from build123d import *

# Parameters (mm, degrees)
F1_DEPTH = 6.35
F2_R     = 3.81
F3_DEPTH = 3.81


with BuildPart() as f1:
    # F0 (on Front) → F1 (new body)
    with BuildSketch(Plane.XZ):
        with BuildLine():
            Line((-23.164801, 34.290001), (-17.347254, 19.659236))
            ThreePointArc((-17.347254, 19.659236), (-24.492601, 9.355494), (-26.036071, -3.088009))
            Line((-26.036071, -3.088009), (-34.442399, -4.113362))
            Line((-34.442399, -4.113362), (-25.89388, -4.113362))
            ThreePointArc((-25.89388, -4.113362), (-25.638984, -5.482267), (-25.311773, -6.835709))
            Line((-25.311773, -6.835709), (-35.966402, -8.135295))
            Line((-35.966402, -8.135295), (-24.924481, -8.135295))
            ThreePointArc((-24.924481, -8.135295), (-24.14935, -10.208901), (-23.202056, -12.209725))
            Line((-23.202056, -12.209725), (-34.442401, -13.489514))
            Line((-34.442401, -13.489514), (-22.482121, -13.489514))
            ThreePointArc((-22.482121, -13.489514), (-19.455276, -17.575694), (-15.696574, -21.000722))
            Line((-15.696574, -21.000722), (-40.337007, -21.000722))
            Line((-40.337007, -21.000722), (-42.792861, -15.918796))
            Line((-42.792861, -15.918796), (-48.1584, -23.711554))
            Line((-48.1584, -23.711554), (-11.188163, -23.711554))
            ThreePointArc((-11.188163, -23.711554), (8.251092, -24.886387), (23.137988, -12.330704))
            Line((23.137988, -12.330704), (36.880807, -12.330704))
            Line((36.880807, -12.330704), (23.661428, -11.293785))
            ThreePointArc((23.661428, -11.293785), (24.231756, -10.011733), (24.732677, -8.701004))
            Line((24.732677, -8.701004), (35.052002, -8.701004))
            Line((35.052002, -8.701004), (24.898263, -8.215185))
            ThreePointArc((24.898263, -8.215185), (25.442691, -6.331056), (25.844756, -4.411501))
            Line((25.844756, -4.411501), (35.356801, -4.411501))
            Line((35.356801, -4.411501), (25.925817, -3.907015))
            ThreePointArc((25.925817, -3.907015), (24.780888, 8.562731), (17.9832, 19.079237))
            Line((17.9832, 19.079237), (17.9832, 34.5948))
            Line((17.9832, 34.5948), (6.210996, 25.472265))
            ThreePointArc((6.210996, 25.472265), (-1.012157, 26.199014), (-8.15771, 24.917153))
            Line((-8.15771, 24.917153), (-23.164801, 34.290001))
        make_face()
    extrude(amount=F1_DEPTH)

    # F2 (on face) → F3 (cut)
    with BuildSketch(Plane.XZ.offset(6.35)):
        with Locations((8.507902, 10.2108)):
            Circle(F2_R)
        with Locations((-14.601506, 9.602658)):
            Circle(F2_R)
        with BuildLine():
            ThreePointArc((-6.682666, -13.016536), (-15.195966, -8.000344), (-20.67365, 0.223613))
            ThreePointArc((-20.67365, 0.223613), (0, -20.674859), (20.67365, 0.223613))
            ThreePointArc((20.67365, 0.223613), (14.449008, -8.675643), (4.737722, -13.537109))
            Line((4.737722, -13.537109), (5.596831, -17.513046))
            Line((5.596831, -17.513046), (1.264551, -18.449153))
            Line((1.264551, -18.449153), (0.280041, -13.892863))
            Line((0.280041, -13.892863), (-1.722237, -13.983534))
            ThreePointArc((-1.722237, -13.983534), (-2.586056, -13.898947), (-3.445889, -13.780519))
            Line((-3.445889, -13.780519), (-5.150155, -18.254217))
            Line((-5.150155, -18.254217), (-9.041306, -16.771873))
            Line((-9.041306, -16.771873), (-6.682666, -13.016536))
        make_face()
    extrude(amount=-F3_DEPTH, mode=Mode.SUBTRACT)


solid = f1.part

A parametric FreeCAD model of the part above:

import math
import FreeCAD as App
import Part
import Sketcher
Q = App.Units.Quantity

doc = App.newDocument("Part")
body = doc.addObject("PartDesign::Body", "Body")

# Sketch on XZ plane
sketch1 = body.newObject("Sketcher::SketchObject", "Sketch")
sketch1.AttachmentSupport = (doc.getObject("XZ_Plane"), [""])
sketch1.MapMode = "FlatFace"
sketch1.addGeometry(Part.LineSegment(App.Vector(-23.2, 34.3, 0), App.Vector(-17.3, 19.7, 0)), False)
sketch1.addGeometry(Part.ArcOfCircle(Part.Circle(App.Vector(0, 0, 0), App.Vector(0, 0, 1), 26.2), math.radians(131), math.radians(187)), False)
sketch1.addGeometry(Part.LineSegment(App.Vector(-26, -3.1, 0), App.Vector(-34.4, -4.1, 0)), False)
sketch1.addGeometry(Part.LineSegment(App.Vector(-34.4, -4.1, 0), App.Vector(-25.9, -4.1, 0)), False)
sketch1.addGeometry(Part.ArcOfCircle(Part.Circle(App.Vector(0, 0, 0), App.Vector(0, 0, 1), 26.2), math.radians(-170.97), math.radians(-164.89)), False)
sketch1.addGeometry(Part.LineSegment(App.Vector(-25.3, -6.8, 0), App.Vector(-36, -8.1, 0)), False)
sketch1.addGeometry(Part.LineSegment(App.Vector(-36, -8.1, 0), App.Vector(-24.9, -8.1, 0)), False)
sketch1.addGeometry(Part.ArcOfCircle(Part.Circle(App.Vector(0, 0, 0), App.Vector(0, 0, 1), 26.2), math.radians(-161.92), math.radians(-152.25)), False)
sketch1.addGeometry(Part.LineSegment(App.Vector(-23.2, -12.2, 0), App.Vector(-34.4, -13.5, 0)), False)
sketch1.addGeometry(Part.LineSegment(App.Vector(-34.4, -13.5, 0), App.Vector(-22.5, -13.5, 0)), False)
sketch1.addGeometry(Part.ArcOfCircle(Part.Circle(App.Vector(0, 0, 0), App.Vector(0, 0, 1), 26.2), math.radians(-149), math.radians(-127)), False)
sketch1.addGeometry(Part.LineSegment(App.Vector(-15.7, -21, 0), App.Vector(-40.3, -21, 0)), False)
sketch1.addGeometry(Part.LineSegment(App.Vector(-40.3, -21, 0), App.Vector(-42.8, -15.9, 0)), False)
sketch1.addGeometry(Part.LineSegment(App.Vector(-42.8, -15.9, 0), App.Vector(-48.2, -23.7, 0)), False)
sketch1.addGeometry(Part.LineSegment(App.Vector(-48.2, -23.7, 0), App.Vector(-11.2, -23.7, 0)), False)
sketch1.addGeometry(Part.ArcOfCircle(Part.Circle(App.Vector(0, 0, 0), App.Vector(0, 0, 1), 26.2), math.radians(-115), math.radians(-28)), False)
sketch1.addGeometry(Part.LineSegment(App.Vector(23.1, -12.3, 0), App.Vector(36.9, -12.3, 0)), False)
sketch1.addGeometry(Part.LineSegment(App.Vector(36.9, -12.3, 0), App.Vector(23.7, -11.3, 0)), False)
sketch1.addGeometry(Part.ArcOfCircle(Part.Circle(App.Vector(0, 0, 0), App.Vector(0, 0, 1), 26.2), math.radians(-25.52), math.radians(-19.38)), False)
sketch1.addGeometry(Part.LineSegment(App.Vector(24.7, -8.7, 0), App.Vector(35.1, -8.7, 0)), False)
sketch1.addGeometry(Part.LineSegment(App.Vector(35.1, -8.7, 0), App.Vector(24.9, -8.2, 0)), False)
sketch1.addGeometry(Part.ArcOfCircle(Part.Circle(App.Vector(0, 0, 0), App.Vector(0, 0, 1), 26.2), math.radians(-18.26), math.radians(-9.69)), False)
sketch1.addGeometry(Part.LineSegment(App.Vector(25.8, -4.4, 0), App.Vector(35.4, -4.4, 0)), False)
sketch1.addGeometry(Part.LineSegment(App.Vector(35.4, -4.4, 0), App.Vector(25.9, -3.9, 0)), False)
sketch1.addGeometry(Part.ArcOfCircle(Part.Circle(App.Vector(0, 0, 0), App.Vector(0, 0, 1), 26.2), math.radians(-9), math.radians(47)), False)
sketch1.addGeometry(Part.LineSegment(App.Vector(18, 19.1, 0), App.Vector(18, 34.6, 0)), False)
sketch1.addGeometry(Part.LineSegment(App.Vector(18, 34.6, 0), App.Vector(6.2, 25.5, 0)), False)
sketch1.addGeometry(Part.ArcOfCircle(Part.Circle(App.Vector(0, 0, 0), App.Vector(0, 0, 1), 26.2), math.radians(76), math.radians(108)), False)
sketch1.addGeometry(Part.LineSegment(App.Vector(-8.2, 24.9, 0), App.Vector(-23.2, 34.3, 0)), False)
sketch1.addConstraint(Sketcher.Constraint("Coincident", 0, 2, 1, 1))
sketch1.addConstraint(Sketcher.Constraint("Coincident", 1, 2, 2, 1))
sketch1.addConstraint(Sketcher.Constraint("Coincident", 2, 2, 3, 1))
sketch1.addConstraint(Sketcher.Constraint("Coincident", 3, 2, 4, 1))
sketch1.addConstraint(Sketcher.Constraint("Coincident", 4, 2, 5, 1))
sketch1.addConstraint(Sketcher.Constraint("Coincident", 5, 2, 6, 1))
sketch1.addConstraint(Sketcher.Constraint("Coincident", 6, 2, 7, 1))
sketch1.addConstraint(Sketcher.Constraint("Coincident", 7, 2, 8, 1))
sketch1.addConstraint(Sketcher.Constraint("Coincident", 8, 2, 9, 1))
sketch1.addConstraint(Sketcher.Constraint("Coincident", 9, 2, 10, 1))
sketch1.addConstraint(Sketcher.Constraint("Coincident", 10, 2, 11, 1))
sketch1.addConstraint(Sketcher.Constraint("Coincident", 11, 2, 12, 1))
sketch1.addConstraint(Sketcher.Constraint("Coincident", 12, 2, 13, 1))
sketch1.addConstraint(Sketcher.Constraint("Coincident", 13, 2, 14, 1))
sketch1.addConstraint(Sketcher.Constraint("Coincident", 14, 2, 15, 1))
sketch1.addConstraint(Sketcher.Constraint("Coincident", 15, 2, 16, 1))
sketch1.addConstraint(Sketcher.Constraint("Coincident", 16, 2, 17, 1))
sketch1.addConstraint(Sketcher.Constraint("Coincident", 17, 2, 18, 1))
sketch1.addConstraint(Sketcher.Constraint("Coincident", 18, 2, 19, 1))
sketch1.addConstraint(Sketcher.Constraint("Coincident", 19, 2, 20, 1))
sketch1.addConstraint(Sketcher.Constraint("Coincident", 20, 2, 21, 1))
sketch1.addConstraint(Sketcher.Constraint("Coincident", 21, 2, 22, 1))
sketch1.addConstraint(Sketcher.Constraint("Coincident", 22, 2, 23, 1))
sketch1.addConstraint(Sketcher.Constraint("Coincident", 23, 2, 24, 1))
sketch1.addConstraint(Sketcher.Constraint("Coincident", 24, 2, 25, 1))
sketch1.addConstraint(Sketcher.Constraint("Coincident", 25, 2, 26, 1))
sketch1.addConstraint(Sketcher.Constraint("Coincident", 26, 2, 27, 1))
sketch1.addConstraint(Sketcher.Constraint("Coincident", 27, 2, 28, 1))
sketch1.addConstraint(Sketcher.Constraint("Coincident", 28, 2, 0, 1))
sketch1.addConstraint(Sketcher.Constraint("Horizontal", 3))
sketch1.addConstraint(Sketcher.Constraint("Horizontal", 6))
sketch1.addConstraint(Sketcher.Constraint("Horizontal", 9))
sketch1.addConstraint(Sketcher.Constraint("Horizontal", 11))
sketch1.addConstraint(Sketcher.Constraint("Horizontal", 14))
sketch1.addConstraint(Sketcher.Constraint("Horizontal", 16))
sketch1.addConstraint(Sketcher.Constraint("Horizontal", 19))
sketch1.addConstraint(Sketcher.Constraint("Horizontal", 22))
sketch1.addConstraint(Sketcher.Constraint("Vertical", 25))
sketch1.addConstraint(Sketcher.Constraint("Coincident", 1, 3, -1, 1))
sketch1.addConstraint(Sketcher.Constraint("Coincident", 15, 3, -1, 1))
sketch1.addConstraint(Sketcher.Constraint("Coincident", 24, 3, -1, 1))
sketch1.addConstraint(Sketcher.Constraint("Equal", 15, 24))
sketch1.addConstraint(Sketcher.Constraint("PointOnObject", 27, 3, -2))
sketch1.addConstraint(Sketcher.Constraint("Parallel", 2, 5))
sketch1.addConstraint(Sketcher.Constraint("Vertical", 2, 2, 8, 2))
sketch1.addConstraint(Sketcher.Constraint("DistanceX", -1, 1, 19, 2, Q("1.3800001 in")))
sketch1.addConstraint(Sketcher.Constraint("DistanceY", -1, 1, 28, 2, Q("1.35 in")))
sketch1.addConstraint(Sketcher.Constraint("DistanceX", 5, 2, 2, 2, Q("0.0600001 in")))
sketch1.addConstraint(Sketcher.Constraint("DistanceX", 13, 2, 8, 2, Q("0.54 in")))
sketch1.addConstraint(Sketcher.Constraint("DistanceX", 2, 2, -1, 1, Q("1.356 in")))
sketch1.addConstraint(Sketcher.Constraint("DistanceX", -1, 1, 22, 2, Q("1.392 in")))
sketch1.addConstraint(Sketcher.Constraint("DistanceX", -1, 1, 24, 2, Q("0.708 in")))
sketch1.addConstraint(Sketcher.Constraint("DistanceY", -1, 1, 25, 2, Q("1.362 in")))
sketch1.addConstraint(Sketcher.Constraint("DistanceX", 28, 2, -1, 1, Q("0.912 in")))
sketch1.addConstraint(Sketcher.Constraint("Radius", 1, Q("26.21856 mm")))
sketch1.addConstraint(Sketcher.Constraint("Radius", 4, Q("26.218789 mm")))
sketch1.addConstraint(Sketcher.Constraint("Radius", 7, Q("26.218651 mm")))
sketch1.addConstraint(Sketcher.Constraint("Radius", 10, Q("26.21853 mm")))
sketch1.addConstraint(Sketcher.Constraint("DistanceX", 19, 2, 16, 2, Q("0.0720002 in")))
sketch1.addConstraint(Sketcher.Constraint("DistanceY", 10, 2, -1, 1, Q("0.8268001 in")))
sketch1.addConstraint(Sketcher.Constraint("Radius", 15, Q("26.218557 mm")))
sketch1.addConstraint(Sketcher.Constraint("Radius", 18, Q("26.218184 mm")))
sketch1.addConstraint(Sketcher.Constraint("Radius", 21, Q("26.218313 mm")))
sketch1.addConstraint(Sketcher.Constraint("Radius", 27, Q("26.218536 mm")))
sketch1.addConstraint(Sketcher.Constraint("DistanceX", 6, 2, 14, 2, Q("0.5407999 in")))
sketch1.addConstraint(Sketcher.Constraint("DistanceX", 3, 1, 3, 2, Q("8.548519 mm")))
sketch1.addConstraint(Sketcher.Constraint("DistanceX", 6, 1, 6, 2, Q("11.041921 mm")))
sketch1.addConstraint(Sketcher.Constraint("DistanceX", 9, 1, 9, 2, Q("11.96028 mm")))
sketch1.addConstraint(Sketcher.Constraint("DistanceX", 16, 1, 16, 2, Q("13.742819 mm")))
sketch1.addConstraint(Sketcher.Constraint("DistanceY", 21, 2, -1, 1, Q("4.411501 mm")))
sketch1.addConstraint(Sketcher.Constraint("DistanceY", 2, 2, 0, 2, Q("23.772598 mm")))
sketch1.addConstraint(Sketcher.Constraint("DistanceY", 4, 2, 1, 2, Q("3.7477 mm")))
sketch1.addConstraint(Sketcher.Constraint("DistanceX", 4, 2, 10, 2, Q("9.615199 mm")))
sketch1.addConstraint(Sketcher.Constraint("DistanceY", 12, 2, 5, 2, Q("7.783501 mm")))
sketch1.addConstraint(Sketcher.Constraint("DistanceX", 7, 3, 15, 2, Q("23.137901 mm")))
sketch1.addConstraint(Sketcher.Constraint("DistanceX", 4, 3, 17, 2, Q("23.661201 mm")))
sketch1.addConstraint(Sketcher.Constraint("DistanceY", 15, 2, 18, 2, Q("3.6297 mm")))
sketch1.addConstraint(Sketcher.Constraint("DistanceY", 17, 2, 20, 2, Q("3.0786 mm")))
sketch1.addConstraint(Sketcher.Constraint("Distance", 0, Q("15.74494 mm")))
sketch1.addConstraint(Sketcher.Constraint("Distance", 28, Q("17.693588 mm")))
sketch1.addConstraint(Sketcher.Constraint("DistanceX", 11, 2, 11, 1, Q("24.640433 mm")))
sketch1.addConstraint(Sketcher.Constraint("DistanceX", 19, 1, 19, 2, Q("10.319325 mm")))
sketch1.addConstraint(Sketcher.Constraint("DistanceX", 22, 1, 22, 2, Q("9.512045 mm")))
sketch1.addConstraint(Sketcher.Constraint("DistanceY", 18, 3, -1, 1, Q("0.000138 mm")))
sketch1.addConstraint(Sketcher.Constraint("DistanceX", 1, 2, -1, 1, Q("26.036071 mm")))
sketch1.addConstraint(Sketcher.Constraint("DistanceX", 12, 2, -1, 1, Q("42.792861 mm")))
sketch1.addConstraint(Sketcher.Constraint("DistanceX", -1, 1, 17, 2, Q("23.661428 mm")))
sketch1.addConstraint(Sketcher.Constraint("DistanceX", 27, 2, -1, 1, Q("8.15771 mm")))
sketch1.addConstraint(Sketcher.Constraint("DistanceX", 10, 3, 18, 3, Q("0.000368 mm")))
sketch1.addConstraint(Sketcher.Constraint("DistanceY", 21, 3, 4, 3, Q("0.000109 mm")))
sketch1.addConstraint(Sketcher.Constraint("DistanceY", 7, 2, 6, 2, Q("4.07443 mm")))
sketch1.addConstraint(Sketcher.Constraint("DistanceX", 21, 2, 23, 2, Q("0.081061 mm")))
sketch1.addConstraint(Sketcher.Constraint("DistanceX", 0, 2, 26, 2, Q("23.55825 mm")))
pad1 = body.newObject("PartDesign::Pad", "Pad")
pad1.Profile = sketch1
pad1.Length = Q("0.25 in")

# Sketch on XZ plane
sketch2 = body.newObject("Sketcher::SketchObject", "Sketch001")
sketch2.AttachmentSupport = (doc.getObject("XZ_Plane"), [""])
sketch2.MapMode = "FlatFace"
sketch2.AttachmentOffset = App.Placement(App.Vector(0, 0, 0.25 * 25.4), App.Rotation())
sketch2.addGeometry(Part.Circle(App.Vector(8.5, 10.2, 0), App.Vector(0, 0, 1), 3.8), False)
sketch2.addGeometry(Part.Circle(App.Vector(-14.6, 9.6, 0), App.Vector(0, 0, 1), 3.8), False)
sketch2.addGeometry(Part.ArcOfCircle(Part.Circle(App.Vector(0, 8.1, 0), App.Vector(0, 0, 1), 22.1), math.radians(-159), math.radians(-108)), False)
sketch2.addGeometry(Part.ArcOfCircle(Part.Circle(App.Vector(0, 0, 0), App.Vector(0, 0, 1), 20.7), math.radians(179), math.radians(361)), False)
sketch2.addGeometry(Part.ArcOfCircle(Part.Circle(App.Vector(0, 8.1, 0), App.Vector(0, 0, 1), 22.1), math.radians(-78), math.radians(-21)), False)
sketch2.addGeometry(Part.LineSegment(App.Vector(4.7, -13.5, 0), App.Vector(5.6, -17.5, 0)), False)
sketch2.addGeometry(Part.LineSegment(App.Vector(5.6, -17.5, 0), App.Vector(1.3, -18.4, 0)), False)
sketch2.addGeometry(Part.LineSegment(App.Vector(1.3, -18.4, 0), App.Vector(0.3, -13.9, 0)), False)
sketch2.addGeometry(Part.LineSegment(App.Vector(0.3, -13.9, 0), App.Vector(-1.7, -14, 0)), False)
sketch2.addGeometry(Part.ArcOfCircle(Part.Circle(App.Vector(0, 8.1, 0), App.Vector(0, 0, 1), 22.1), math.radians(-98.97), math.radians(-94.47)), False)
sketch2.addGeometry(Part.LineSegment(App.Vector(-3.4, -13.8, 0), App.Vector(-5.2, -18.3, 0)), False)
sketch2.addGeometry(Part.LineSegment(App.Vector(-5.2, -18.3, 0), App.Vector(-9, -16.8, 0)), False)
sketch2.addGeometry(Part.LineSegment(App.Vector(-9, -16.8, 0), App.Vector(-6.7, -13, 0)), False)
sketch2.addConstraint(Sketcher.Constraint("Coincident", 2, 1, 3, 1))
sketch2.addConstraint(Sketcher.Constraint("Coincident", 3, 2, 4, 2))
sketch2.addConstraint(Sketcher.Constraint("Coincident", 4, 1, 5, 1))
sketch2.addConstraint(Sketcher.Constraint("Coincident", 5, 2, 6, 1))
sketch2.addConstraint(Sketcher.Constraint("Coincident", 6, 2, 7, 1))
sketch2.addConstraint(Sketcher.Constraint("Coincident", 7, 2, 8, 1))
sketch2.addConstraint(Sketcher.Constraint("Coincident", 8, 2, 9, 2))
sketch2.addConstraint(Sketcher.Constraint("Coincident", 9, 1, 10, 1))
sketch2.addConstraint(Sketcher.Constraint("Coincident", 10, 2, 11, 1))
sketch2.addConstraint(Sketcher.Constraint("Coincident", 11, 2, 12, 1))
sketch2.addConstraint(Sketcher.Constraint("Coincident", 12, 2, 2, 2))
sketch2.addConstraint(Sketcher.Constraint("Coincident", 3, 3, -1, 1))
sketch2.addConstraint(Sketcher.Constraint("Coincident", 4, 3, 2, 3))
sketch2.addConstraint(Sketcher.Constraint("Equal", 0, 1))
sketch2.addConstraint(Sketcher.Constraint("Equal", 2, 4))
sketch2.addConstraint(Sketcher.Constraint("PointOnObject", 4, 3, -2))
sketch2.addConstraint(Sketcher.Constraint("Perpendicular", 5, 6))
sketch2.addConstraint(Sketcher.Constraint("Perpendicular", 6, 7))
sketch2.addConstraint(Sketcher.Constraint("Perpendicular", 10, 11))
sketch2.addConstraint(Sketcher.Constraint("Diameter", 0, Q("0.3 in")))
sketch2.addConstraint(Sketcher.Constraint("DistanceY", -1, 1, 0, 3, Q("0.402 in")))
sketch2.addConstraint(Sketcher.Constraint("Radius", 3, Q("20.674859 mm")))
sketch2.addConstraint(Sketcher.Constraint("Radius", 2, Q("22.108085 mm")))
sketch2.addConstraint(Sketcher.Constraint("Radius", 9, Q("22.108274 mm")))
sketch2.addConstraint(Sketcher.Constraint("DistanceX", 4, 3, 0, 3, Q("8.5079 mm")))
sketch2.addConstraint(Sketcher.Constraint("DistanceX", 9, 3, 4, 1, Q("4.737699 mm")))
sketch2.addConstraint(Sketcher.Constraint("DistanceY", 10, 2, 9, 1, Q("4.473698 mm")))
sketch2.addConstraint(Sketcher.Constraint("DistanceY", 8, 2, 12, 2, Q("0.966998 mm")))
sketch2.addConstraint(Sketcher.Constraint("Distance", 6, Q("4.432262 mm")))
sketch2.addConstraint(Sketcher.Constraint("Distance", 7, Q("4.661442 mm")))
sketch2.addConstraint(Sketcher.Constraint("Distance", 8, Q("2.00433 mm")))
sketch2.addConstraint(Sketcher.Constraint("Distance", 11, Q("4.16394 mm")))
sketch2.addConstraint(Sketcher.Constraint("DistanceY", -1, 1, 4, 3, Q("8.057368 mm")))
sketch2.addConstraint(Sketcher.Constraint("DistanceY", 4, 1, -1, 1, Q("13.537109 mm")))
sketch2.addConstraint(Sketcher.Constraint("DistanceX", -1, 1, 5, 2, Q("5.596831 mm")))
sketch2.addConstraint(Sketcher.Constraint("DistanceX", -1, 1, 6, 2, Q("1.264551 mm")))
sketch2.addConstraint(Sketcher.Constraint("DistanceX", 9, 1, -1, 1, Q("3.445889 mm")))
sketch2.addConstraint(Sketcher.Constraint("DistanceY", 9, 1, -1, 1, Q("13.780519 mm")))
sketch2.addConstraint(Sketcher.Constraint("DistanceX", 1, 3, 0, 3, Q("23.109408 mm")))
sketch2.addConstraint(Sketcher.Constraint("DistanceY", 2, 3, 1, 3, Q("1.54529 mm")))
sketch2.addConstraint(Sketcher.Constraint("DistanceX", 10, 2, 8, 2, Q("3.427918 mm")))
pocket1 = body.newObject("PartDesign::Pocket", "Pocket")
pocket1.Profile = sketch2
pocket1.Length = Q("0.15 in")

doc.recompute()
